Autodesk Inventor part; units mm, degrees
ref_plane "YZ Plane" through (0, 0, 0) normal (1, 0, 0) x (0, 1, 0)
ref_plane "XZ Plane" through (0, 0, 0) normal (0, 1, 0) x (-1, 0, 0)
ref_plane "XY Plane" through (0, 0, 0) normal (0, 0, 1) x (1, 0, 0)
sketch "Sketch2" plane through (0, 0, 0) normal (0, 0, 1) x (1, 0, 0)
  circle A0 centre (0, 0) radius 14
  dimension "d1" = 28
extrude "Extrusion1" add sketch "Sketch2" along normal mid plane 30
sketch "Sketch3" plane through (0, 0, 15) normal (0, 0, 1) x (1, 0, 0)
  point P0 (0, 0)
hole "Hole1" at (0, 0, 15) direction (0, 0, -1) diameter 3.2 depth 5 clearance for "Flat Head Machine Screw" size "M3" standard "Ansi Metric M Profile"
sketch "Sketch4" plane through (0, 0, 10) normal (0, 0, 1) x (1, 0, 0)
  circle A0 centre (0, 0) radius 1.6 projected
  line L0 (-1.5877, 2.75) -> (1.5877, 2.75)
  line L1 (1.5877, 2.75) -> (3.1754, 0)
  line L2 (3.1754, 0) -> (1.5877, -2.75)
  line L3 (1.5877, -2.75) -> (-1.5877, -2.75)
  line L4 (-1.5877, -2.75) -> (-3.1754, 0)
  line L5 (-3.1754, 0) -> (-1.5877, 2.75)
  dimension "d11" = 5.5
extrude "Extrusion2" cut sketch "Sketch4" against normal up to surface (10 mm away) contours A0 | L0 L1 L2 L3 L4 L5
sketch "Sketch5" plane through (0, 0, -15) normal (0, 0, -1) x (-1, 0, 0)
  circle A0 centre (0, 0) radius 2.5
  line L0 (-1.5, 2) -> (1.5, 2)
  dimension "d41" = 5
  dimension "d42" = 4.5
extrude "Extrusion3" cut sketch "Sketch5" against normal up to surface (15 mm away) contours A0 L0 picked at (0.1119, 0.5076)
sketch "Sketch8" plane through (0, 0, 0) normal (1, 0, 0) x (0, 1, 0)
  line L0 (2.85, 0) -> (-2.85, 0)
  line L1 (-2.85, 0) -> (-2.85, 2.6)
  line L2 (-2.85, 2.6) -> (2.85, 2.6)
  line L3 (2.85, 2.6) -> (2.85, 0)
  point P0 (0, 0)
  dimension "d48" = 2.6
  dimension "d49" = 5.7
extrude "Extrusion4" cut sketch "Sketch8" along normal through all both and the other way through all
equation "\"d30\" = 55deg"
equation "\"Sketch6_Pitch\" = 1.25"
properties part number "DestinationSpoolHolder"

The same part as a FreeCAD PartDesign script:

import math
import FreeCAD as App
import Part
import Sketcher
from FreeCAD import Vector
Q = App.Units.Quantity


def add_polygon(sketch, points):
    """Adds a closed chain of lines whose ends are joined by coincident constraints."""
    first, n = sketch.GeometryCount, len(points)
    for a, b in zip(points, points[1:] + points[:1]):
        sketch.addGeometry(Part.LineSegment(App.Vector(*a, 0), App.Vector(*b, 0)), False)
    for i in range(n):
        sketch.addConstraint(Sketcher.Constraint("Coincident", first + i, 2, first + (i + 1) % n, 1))

doc = App.newDocument("Part")
body = doc.addObject("PartDesign::Body", "Body")

# Sketch on XY plane
sketch1 = doc.addObject("Sketcher::SketchObject", "Sketch")
body.addObject(sketch1)
sketch1.AttachmentSupport = (doc.XY_Plane, [""])
sketch1.MapMode = "FlatFace"
sketch1.addGeometry(Part.Circle(Vector(0, 0, 0), Vector(0, 0, 1), 14), False)
sketch1.addConstraint(Sketcher.Constraint("Coincident", 0, 3, -1, 1))
sketch1.addConstraint(Sketcher.Constraint("Diameter", 0, Q("28 mm")))
pad1 = doc.addObject("PartDesign::Pad", "Pad")
body.addObject(pad1)
pad1.Profile = sketch1
pad1.Length = 30
pad1.Midplane = True

# Sketch on XY plane
sketch2 = doc.addObject("Sketcher::SketchObject", "Sketch001")
body.addObject(sketch2)
sketch2.AttachmentSupport = (doc.XY_Plane, [""])
sketch2.MapMode = "FlatFace"
sketch2.AttachmentOffset = App.Placement(Vector(0, 0, 15), App.Rotation())
sketch2.addGeometry(Part.Circle(Vector(0, 0, 0), Vector(0, 0, 1), 1.6), False)
sketch2.addConstraint(Sketcher.Constraint("Coincident", 0, 3, -1, 1))
sketch2.addConstraint(Sketcher.Constraint("Diameter", 0, Q("3.2 mm")))
doc.recompute()
hole = doc.addObject("PartDesign::Hole", "Hole")
body.addObject(hole)
hole.Profile = sketch2
hole.ThreadType = "None"
hole.Diameter = 3.2
hole.DepthType = "Dimension"
hole.Depth = 5
hole.DrillPoint = "Flat"

# Sketch on XY plane
sketch3 = doc.addObject("Sketcher::SketchObject", "Sketch002")
body.addObject(sketch3)
sketch3.AttachmentSupport = (doc.XY_Plane, [""])
sketch3.MapMode = "FlatFace"
sketch3.AttachmentOffset = App.Placement(Vector(0, 0, 10), App.Rotation())
add_polygon(sketch3, [(1.6, 2.8), (-1.6, 2.8), (-3.2, 0), (-1.6, -2.8), (1.6, -2.8), (3.2, 0)])  # lines 0-5
sketch3.addConstraint(Sketcher.Constraint("Horizontal", 0))
sketch3.addConstraint(Sketcher.Constraint("Horizontal", 3))
sketch3.addConstraint(Sketcher.Constraint("Symmetric", 0, 2, 3, 2, -1, 1))
sketch3.addConstraint(Sketcher.Constraint("Symmetric", 1, 2, 4, 2, -1, 1))
sketch3.addConstraint(Sketcher.Constraint("PointOnObject", 1, 2, -1))
sketch3.addConstraint(Sketcher.Constraint("Parallel", 2, 5))
sketch3.addConstraint(Sketcher.Constraint("Vertical", 0, 2, 2, 2))
sketch3.addConstraint(Sketcher.Constraint("DistanceY", 2, 2, 0, 2, Q("5.5 mm")))
sketch3.addConstraint(Sketcher.Constraint("Angle", 1, Q("-119.9998 deg")))
sketch3.addConstraint(Sketcher.Constraint("DistanceX", 0, 2, 0, 1, Q("3.1754 mm")))
pocket1 = doc.addObject("PartDesign::Pocket", "Pocket")
body.addObject(pocket1)
pocket1.Profile = sketch3
pocket1.Length = 10

# Sketch on XY plane
sketch4 = doc.addObject("Sketcher::SketchObject", "Sketch003")
body.addObject(sketch4)
sketch4.AttachmentSupport = (doc.XY_Plane, [""])
sketch4.MapMode = "FlatFace"
sketch4.AttachmentOffset = App.Placement(Vector(0, 0, -15), App.Rotation())
sketch4.addGeometry(Part.ArcOfCircle(Part.Circle(Vector(0, 0, 0), Vector(0, 0, 1), 2.5), math.radians(127), math.radians(413)), False)
sketch4.addGeometry(Part.LineSegment(Vector(-1.5, 2, 0), Vector(1.5, 2, 0)), False)
sketch4.addConstraint(Sketcher.Constraint("Coincident", 0, 1, 1, 1))
sketch4.addConstraint(Sketcher.Constraint("Coincident", 1, 2, 0, 2))
sketch4.addConstraint(Sketcher.Constraint("Horizontal", 1))
sketch4.addConstraint(Sketcher.Constraint("Coincident", 0, 3, -1, 1))
sketch4.addConstraint(Sketcher.Constraint("Radius", 0, Q("2.5 mm")))
sketch4.addConstraint(Sketcher.Constraint("DistanceX", 1, 1, 1, 2, Q("3 mm")))
pocket2 = doc.addObject("PartDesign::Pocket", "Pocket001")
body.addObject(pocket2)
pocket2.Profile = sketch4
pocket2.Length = 15
pocket2.Reversed = True

# Sketch on YZ plane
sketch5 = doc.addObject("Sketcher::SketchObject", "Sketch004")
body.addObject(sketch5)
sketch5.AttachmentSupport = (doc.YZ_Plane, [""])
sketch5.MapMode = "FlatFace"
add_polygon(sketch5, [(-2.9, 0), (2.9, 0), (2.9, 2.6), (-2.9, 2.6)])  # lines 0-3
sketch5.addConstraint(Sketcher.Constraint("Horizontal", 0))
sketch5.addConstraint(Sketcher.Constraint("Vertical", 1))
sketch5.addConstraint(Sketcher.Constraint("Horizontal", 2))
sketch5.addConstraint(Sketcher.Constraint("Vertical", 3))
sketch5.addConstraint(Sketcher.Constraint("Symmetric", 0, 2, 3, 2, -1, 1))
sketch5.addConstraint(Sketcher.Constraint("DistanceX", 0, 1, 0, 2, Q("5.7 mm")))
sketch5.addConstraint(Sketcher.Constraint("DistanceY", 1, 1, 1, 2, Q("2.6 mm")))
pocket3 = doc.addObject("PartDesign::Pocket", "Pocket002")
body.addObject(pocket3)
pocket3.Profile = sketch5
pocket3.Type = "ThroughAll"
pocket3.Midplane = True

doc.recompute()
